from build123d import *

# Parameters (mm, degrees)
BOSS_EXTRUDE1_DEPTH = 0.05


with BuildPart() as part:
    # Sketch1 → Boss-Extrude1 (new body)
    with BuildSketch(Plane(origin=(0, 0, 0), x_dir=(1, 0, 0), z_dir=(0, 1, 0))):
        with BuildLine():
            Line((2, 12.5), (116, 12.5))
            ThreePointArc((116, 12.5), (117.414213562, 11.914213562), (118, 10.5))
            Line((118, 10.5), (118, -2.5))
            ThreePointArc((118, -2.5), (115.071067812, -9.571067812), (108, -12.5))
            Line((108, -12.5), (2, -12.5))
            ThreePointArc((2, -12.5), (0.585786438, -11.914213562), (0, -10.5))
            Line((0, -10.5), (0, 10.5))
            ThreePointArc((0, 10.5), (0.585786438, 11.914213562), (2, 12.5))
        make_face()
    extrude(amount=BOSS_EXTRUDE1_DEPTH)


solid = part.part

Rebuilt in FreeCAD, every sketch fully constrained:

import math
import FreeCAD as App
import Part
import Sketcher
Q = App.Units.Quantity

doc = App.newDocument("Part")
body = doc.addObject("PartDesign::Body", "Body")

sketch1 = doc.addObject("Sketcher::SketchObject", "Sketch")
body.addObject(sketch1)
sketch1.AttachmentSupport = (doc.XZ_Plane, [""])
sketch1.MapMode = "FlatFace"
sketch1.addGeometry(Part.LineSegment(App.Vector(116, -12.5, 0), App.Vector(2, -12.5, 0)), False)
sketch1.addGeometry(Part.ArcOfCircle(Part.Circle(App.Vector(2, -10.5, 0), App.Vector(0, 0, 1), 2), math.radians(-180), math.radians(-90)), False)
sketch1.addGeometry(Part.LineSegment(App.Vector(0, -10.5, 0), App.Vector(0, 10.5, 0)), False)
sketch1.addGeometry(Part.ArcOfCircle(Part.Circle(App.Vector(2, 10.5, 0), App.Vector(0, 0, 1), 2), math.radians(90), math.radians(180)), False)
sketch1.addGeometry(Part.LineSegment(App.Vector(2, 12.5, 0), App.Vector(108, 12.5, 0)), False)
sketch1.addGeometry(Part.ArcOfCircle(Part.Circle(App.Vector(108, 2.5, 0), App.Vector(0, 0, 1), 10), math.radians(0), math.radians(90)), False)
sketch1.addGeometry(Part.LineSegment(App.Vector(118, 2.5, 0), App.Vector(118, -10.5, 0)), False)
sketch1.addGeometry(Part.ArcOfCircle(Part.Circle(App.Vector(116, -10.5, 0), App.Vector(0, 0, 1), 2), math.radians(-90), math.radians(0)), False)
sketch1.addConstraint(Sketcher.Constraint("Tangent", 0, 2, 1, 2))
sketch1.addConstraint(Sketcher.Constraint("Tangent", 1, 1, 2, 1))
sketch1.addConstraint(Sketcher.Constraint("Tangent", 2, 2, 3, 2))
sketch1.addConstraint(Sketcher.Constraint("Tangent", 3, 1, 4, 1))
sketch1.addConstraint(Sketcher.Constraint("Tangent", 4, 2, 5, 2))
sketch1.addConstraint(Sketcher.Constraint("Tangent", 5, 1, 6, 1))
sketch1.addConstraint(Sketcher.Constraint("Tangent", 6, 2, 7, 2))
sketch1.addConstraint(Sketcher.Constraint("Tangent", 7, 1, 0, 1))
sketch1.addConstraint(Sketcher.Constraint("Horizontal", 0))
sketch1.addConstraint(Sketcher.Constraint("Vertical", 2))
sketch1.addConstraint(Sketcher.Constraint("Horizontal", 4))
sketch1.addConstraint(Sketcher.Constraint("Vertical", 6))
sketch1.addConstraint(Sketcher.Constraint("Equal", 1, 3))
sketch1.addConstraint(Sketcher.Constraint("Equal", 3, 7))
sketch1.addConstraint(Sketcher.Constraint("Symmetric", 1, 1, 2, 2, -1, 1))
sketch1.addConstraint(Sketcher.Constraint("Radius", 1, Q("2 mm")))
sketch1.addConstraint(Sketcher.Constraint("Radius", 5, Q("10 mm")))
sketch1.addConstraint(Sketcher.Constraint("DistanceX", 0, 2, 0, 1, Q("114 mm")))
sketch1.addConstraint(Sketcher.Constraint("DistanceY", 2, 1, 2, 2, Q("21 mm")))
pad1 = doc.addObject("PartDesign::Pad", "Pad")
body.addObject(pad1)
pad1.Profile = sketch1
pad1.Length = 0.05
pad1.Reversed = True

doc.recompute()
